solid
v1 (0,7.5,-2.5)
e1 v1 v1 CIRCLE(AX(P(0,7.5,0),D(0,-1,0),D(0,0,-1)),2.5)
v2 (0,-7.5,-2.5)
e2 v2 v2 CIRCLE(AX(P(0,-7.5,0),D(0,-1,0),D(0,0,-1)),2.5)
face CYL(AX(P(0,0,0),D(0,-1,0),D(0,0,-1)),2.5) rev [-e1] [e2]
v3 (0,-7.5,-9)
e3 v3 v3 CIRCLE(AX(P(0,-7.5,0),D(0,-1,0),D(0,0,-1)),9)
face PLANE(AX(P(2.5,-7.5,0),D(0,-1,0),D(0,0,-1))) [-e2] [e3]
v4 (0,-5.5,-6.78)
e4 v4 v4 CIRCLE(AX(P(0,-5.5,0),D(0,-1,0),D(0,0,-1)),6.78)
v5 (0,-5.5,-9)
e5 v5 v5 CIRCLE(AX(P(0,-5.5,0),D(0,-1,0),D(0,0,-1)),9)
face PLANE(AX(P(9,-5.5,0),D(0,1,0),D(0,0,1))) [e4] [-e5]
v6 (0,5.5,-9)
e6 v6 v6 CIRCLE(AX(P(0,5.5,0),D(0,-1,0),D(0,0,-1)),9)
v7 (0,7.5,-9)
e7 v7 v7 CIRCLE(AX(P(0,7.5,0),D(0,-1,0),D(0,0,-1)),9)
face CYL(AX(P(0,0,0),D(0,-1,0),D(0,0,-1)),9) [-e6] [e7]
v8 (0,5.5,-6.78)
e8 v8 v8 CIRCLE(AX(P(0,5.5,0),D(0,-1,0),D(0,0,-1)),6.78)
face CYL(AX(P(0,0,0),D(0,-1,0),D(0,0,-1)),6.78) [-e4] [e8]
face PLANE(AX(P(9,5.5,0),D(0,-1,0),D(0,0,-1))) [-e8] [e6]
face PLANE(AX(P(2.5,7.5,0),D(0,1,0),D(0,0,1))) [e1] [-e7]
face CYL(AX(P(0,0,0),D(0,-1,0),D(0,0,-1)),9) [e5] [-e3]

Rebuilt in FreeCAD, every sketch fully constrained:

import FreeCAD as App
import Part
import Sketcher
from FreeCAD import Vector
Q = App.Units.Quantity

doc = App.newDocument("Part")
body = doc.addObject("PartDesign::Body", "Body")

sketch1 = doc.addObject("Sketcher::SketchObject", "Sketch")
body.addObject(sketch1)
sketch1.AttachmentSupport = (doc.XY_Plane, [""])
sketch1.MapMode = "FlatFace"
sketch1.addGeometry(Part.LineSegment(Vector(9, 7.5, 0), Vector(2.5, 7.5, 0)), False)
sketch1.addGeometry(Part.LineSegment(Vector(2.5, 7.5, 0), Vector(2.5, -7.5, 0)), False)
sketch1.addGeometry(Part.LineSegment(Vector(2.5, -7.5, 0), Vector(9, -7.5, 0)), False)
sketch1.addGeometry(Part.LineSegment(Vector(9, -7.5, 0), Vector(9, -5.5, 0)), False)
sketch1.addGeometry(Part.LineSegment(Vector(9, -5.5, 0), Vector(6.8, -5.5, 0)), False)
sketch1.addGeometry(Part.LineSegment(Vector(6.8, -5.5, 0), Vector(6.8, 5.5, 0)), False)
sketch1.addGeometry(Part.LineSegment(Vector(6.8, 5.5, 0), Vector(9, 5.5, 0)), False)
sketch1.addGeometry(Part.LineSegment(Vector(9, 5.5, 0), Vector(9, 7.5, 0)), False)
sketch1.addConstraint(Sketcher.Constraint("Coincident", 0, 2, 1, 1))
sketch1.addConstraint(Sketcher.Constraint("Coincident", 1, 2, 2, 1))
sketch1.addConstraint(Sketcher.Constraint("Coincident", 2, 2, 3, 1))
sketch1.addConstraint(Sketcher.Constraint("Coincident", 3, 2, 4, 1))
sketch1.addConstraint(Sketcher.Constraint("Coincident", 4, 2, 5, 1))
sketch1.addConstraint(Sketcher.Constraint("Coincident", 5, 2, 6, 1))
sketch1.addConstraint(Sketcher.Constraint("Coincident", 6, 2, 7, 1))
sketch1.addConstraint(Sketcher.Constraint("Coincident", 7, 2, 0, 1))
sketch1.addConstraint(Sketcher.Constraint("Horizontal", 0))
sketch1.addConstraint(Sketcher.Constraint("Vertical", 1))
sketch1.addConstraint(Sketcher.Constraint("Horizontal", 2))
sketch1.addConstraint(Sketcher.Constraint("Vertical", 3))
sketch1.addConstraint(Sketcher.Constraint("Horizontal", 4))
sketch1.addConstraint(Sketcher.Constraint("Vertical", 5))
sketch1.addConstraint(Sketcher.Constraint("Horizontal", 6))
sketch1.addConstraint(Sketcher.Constraint("Vertical", 7))
sketch1.addConstraint(Sketcher.Constraint("Symmetric", 3, 2, 6, 2, -1))
sketch1.addConstraint(Sketcher.Constraint("Equal", 3, 7))
sketch1.addConstraint(Sketcher.Constraint("DistanceY", 1, 2, 1, 1, Q("15 mm")))
sketch1.addConstraint(Sketcher.Constraint("DistanceY", 3, 1, 3, 2, Q("2 mm")))
sketch1.addConstraint(Sketcher.Constraint("DistanceX", 0, 2, 0, 1, Q("6.5 mm")))
sketch1.addConstraint(Sketcher.Constraint("DistanceX", -1, 1, 2, 2, Q("9 mm")))
sketch1.addConstraint(Sketcher.Constraint("DistanceX", 4, 2, 4, 1, Q("2.22 mm")))
revolution = doc.addObject("PartDesign::Revolution", "Revolution")
body.addObject(revolution)
revolution.Profile = sketch1
revolution.ReferenceAxis = (sketch1, ["V_Axis"])
revolution.Angle = 360

doc.recompute()
